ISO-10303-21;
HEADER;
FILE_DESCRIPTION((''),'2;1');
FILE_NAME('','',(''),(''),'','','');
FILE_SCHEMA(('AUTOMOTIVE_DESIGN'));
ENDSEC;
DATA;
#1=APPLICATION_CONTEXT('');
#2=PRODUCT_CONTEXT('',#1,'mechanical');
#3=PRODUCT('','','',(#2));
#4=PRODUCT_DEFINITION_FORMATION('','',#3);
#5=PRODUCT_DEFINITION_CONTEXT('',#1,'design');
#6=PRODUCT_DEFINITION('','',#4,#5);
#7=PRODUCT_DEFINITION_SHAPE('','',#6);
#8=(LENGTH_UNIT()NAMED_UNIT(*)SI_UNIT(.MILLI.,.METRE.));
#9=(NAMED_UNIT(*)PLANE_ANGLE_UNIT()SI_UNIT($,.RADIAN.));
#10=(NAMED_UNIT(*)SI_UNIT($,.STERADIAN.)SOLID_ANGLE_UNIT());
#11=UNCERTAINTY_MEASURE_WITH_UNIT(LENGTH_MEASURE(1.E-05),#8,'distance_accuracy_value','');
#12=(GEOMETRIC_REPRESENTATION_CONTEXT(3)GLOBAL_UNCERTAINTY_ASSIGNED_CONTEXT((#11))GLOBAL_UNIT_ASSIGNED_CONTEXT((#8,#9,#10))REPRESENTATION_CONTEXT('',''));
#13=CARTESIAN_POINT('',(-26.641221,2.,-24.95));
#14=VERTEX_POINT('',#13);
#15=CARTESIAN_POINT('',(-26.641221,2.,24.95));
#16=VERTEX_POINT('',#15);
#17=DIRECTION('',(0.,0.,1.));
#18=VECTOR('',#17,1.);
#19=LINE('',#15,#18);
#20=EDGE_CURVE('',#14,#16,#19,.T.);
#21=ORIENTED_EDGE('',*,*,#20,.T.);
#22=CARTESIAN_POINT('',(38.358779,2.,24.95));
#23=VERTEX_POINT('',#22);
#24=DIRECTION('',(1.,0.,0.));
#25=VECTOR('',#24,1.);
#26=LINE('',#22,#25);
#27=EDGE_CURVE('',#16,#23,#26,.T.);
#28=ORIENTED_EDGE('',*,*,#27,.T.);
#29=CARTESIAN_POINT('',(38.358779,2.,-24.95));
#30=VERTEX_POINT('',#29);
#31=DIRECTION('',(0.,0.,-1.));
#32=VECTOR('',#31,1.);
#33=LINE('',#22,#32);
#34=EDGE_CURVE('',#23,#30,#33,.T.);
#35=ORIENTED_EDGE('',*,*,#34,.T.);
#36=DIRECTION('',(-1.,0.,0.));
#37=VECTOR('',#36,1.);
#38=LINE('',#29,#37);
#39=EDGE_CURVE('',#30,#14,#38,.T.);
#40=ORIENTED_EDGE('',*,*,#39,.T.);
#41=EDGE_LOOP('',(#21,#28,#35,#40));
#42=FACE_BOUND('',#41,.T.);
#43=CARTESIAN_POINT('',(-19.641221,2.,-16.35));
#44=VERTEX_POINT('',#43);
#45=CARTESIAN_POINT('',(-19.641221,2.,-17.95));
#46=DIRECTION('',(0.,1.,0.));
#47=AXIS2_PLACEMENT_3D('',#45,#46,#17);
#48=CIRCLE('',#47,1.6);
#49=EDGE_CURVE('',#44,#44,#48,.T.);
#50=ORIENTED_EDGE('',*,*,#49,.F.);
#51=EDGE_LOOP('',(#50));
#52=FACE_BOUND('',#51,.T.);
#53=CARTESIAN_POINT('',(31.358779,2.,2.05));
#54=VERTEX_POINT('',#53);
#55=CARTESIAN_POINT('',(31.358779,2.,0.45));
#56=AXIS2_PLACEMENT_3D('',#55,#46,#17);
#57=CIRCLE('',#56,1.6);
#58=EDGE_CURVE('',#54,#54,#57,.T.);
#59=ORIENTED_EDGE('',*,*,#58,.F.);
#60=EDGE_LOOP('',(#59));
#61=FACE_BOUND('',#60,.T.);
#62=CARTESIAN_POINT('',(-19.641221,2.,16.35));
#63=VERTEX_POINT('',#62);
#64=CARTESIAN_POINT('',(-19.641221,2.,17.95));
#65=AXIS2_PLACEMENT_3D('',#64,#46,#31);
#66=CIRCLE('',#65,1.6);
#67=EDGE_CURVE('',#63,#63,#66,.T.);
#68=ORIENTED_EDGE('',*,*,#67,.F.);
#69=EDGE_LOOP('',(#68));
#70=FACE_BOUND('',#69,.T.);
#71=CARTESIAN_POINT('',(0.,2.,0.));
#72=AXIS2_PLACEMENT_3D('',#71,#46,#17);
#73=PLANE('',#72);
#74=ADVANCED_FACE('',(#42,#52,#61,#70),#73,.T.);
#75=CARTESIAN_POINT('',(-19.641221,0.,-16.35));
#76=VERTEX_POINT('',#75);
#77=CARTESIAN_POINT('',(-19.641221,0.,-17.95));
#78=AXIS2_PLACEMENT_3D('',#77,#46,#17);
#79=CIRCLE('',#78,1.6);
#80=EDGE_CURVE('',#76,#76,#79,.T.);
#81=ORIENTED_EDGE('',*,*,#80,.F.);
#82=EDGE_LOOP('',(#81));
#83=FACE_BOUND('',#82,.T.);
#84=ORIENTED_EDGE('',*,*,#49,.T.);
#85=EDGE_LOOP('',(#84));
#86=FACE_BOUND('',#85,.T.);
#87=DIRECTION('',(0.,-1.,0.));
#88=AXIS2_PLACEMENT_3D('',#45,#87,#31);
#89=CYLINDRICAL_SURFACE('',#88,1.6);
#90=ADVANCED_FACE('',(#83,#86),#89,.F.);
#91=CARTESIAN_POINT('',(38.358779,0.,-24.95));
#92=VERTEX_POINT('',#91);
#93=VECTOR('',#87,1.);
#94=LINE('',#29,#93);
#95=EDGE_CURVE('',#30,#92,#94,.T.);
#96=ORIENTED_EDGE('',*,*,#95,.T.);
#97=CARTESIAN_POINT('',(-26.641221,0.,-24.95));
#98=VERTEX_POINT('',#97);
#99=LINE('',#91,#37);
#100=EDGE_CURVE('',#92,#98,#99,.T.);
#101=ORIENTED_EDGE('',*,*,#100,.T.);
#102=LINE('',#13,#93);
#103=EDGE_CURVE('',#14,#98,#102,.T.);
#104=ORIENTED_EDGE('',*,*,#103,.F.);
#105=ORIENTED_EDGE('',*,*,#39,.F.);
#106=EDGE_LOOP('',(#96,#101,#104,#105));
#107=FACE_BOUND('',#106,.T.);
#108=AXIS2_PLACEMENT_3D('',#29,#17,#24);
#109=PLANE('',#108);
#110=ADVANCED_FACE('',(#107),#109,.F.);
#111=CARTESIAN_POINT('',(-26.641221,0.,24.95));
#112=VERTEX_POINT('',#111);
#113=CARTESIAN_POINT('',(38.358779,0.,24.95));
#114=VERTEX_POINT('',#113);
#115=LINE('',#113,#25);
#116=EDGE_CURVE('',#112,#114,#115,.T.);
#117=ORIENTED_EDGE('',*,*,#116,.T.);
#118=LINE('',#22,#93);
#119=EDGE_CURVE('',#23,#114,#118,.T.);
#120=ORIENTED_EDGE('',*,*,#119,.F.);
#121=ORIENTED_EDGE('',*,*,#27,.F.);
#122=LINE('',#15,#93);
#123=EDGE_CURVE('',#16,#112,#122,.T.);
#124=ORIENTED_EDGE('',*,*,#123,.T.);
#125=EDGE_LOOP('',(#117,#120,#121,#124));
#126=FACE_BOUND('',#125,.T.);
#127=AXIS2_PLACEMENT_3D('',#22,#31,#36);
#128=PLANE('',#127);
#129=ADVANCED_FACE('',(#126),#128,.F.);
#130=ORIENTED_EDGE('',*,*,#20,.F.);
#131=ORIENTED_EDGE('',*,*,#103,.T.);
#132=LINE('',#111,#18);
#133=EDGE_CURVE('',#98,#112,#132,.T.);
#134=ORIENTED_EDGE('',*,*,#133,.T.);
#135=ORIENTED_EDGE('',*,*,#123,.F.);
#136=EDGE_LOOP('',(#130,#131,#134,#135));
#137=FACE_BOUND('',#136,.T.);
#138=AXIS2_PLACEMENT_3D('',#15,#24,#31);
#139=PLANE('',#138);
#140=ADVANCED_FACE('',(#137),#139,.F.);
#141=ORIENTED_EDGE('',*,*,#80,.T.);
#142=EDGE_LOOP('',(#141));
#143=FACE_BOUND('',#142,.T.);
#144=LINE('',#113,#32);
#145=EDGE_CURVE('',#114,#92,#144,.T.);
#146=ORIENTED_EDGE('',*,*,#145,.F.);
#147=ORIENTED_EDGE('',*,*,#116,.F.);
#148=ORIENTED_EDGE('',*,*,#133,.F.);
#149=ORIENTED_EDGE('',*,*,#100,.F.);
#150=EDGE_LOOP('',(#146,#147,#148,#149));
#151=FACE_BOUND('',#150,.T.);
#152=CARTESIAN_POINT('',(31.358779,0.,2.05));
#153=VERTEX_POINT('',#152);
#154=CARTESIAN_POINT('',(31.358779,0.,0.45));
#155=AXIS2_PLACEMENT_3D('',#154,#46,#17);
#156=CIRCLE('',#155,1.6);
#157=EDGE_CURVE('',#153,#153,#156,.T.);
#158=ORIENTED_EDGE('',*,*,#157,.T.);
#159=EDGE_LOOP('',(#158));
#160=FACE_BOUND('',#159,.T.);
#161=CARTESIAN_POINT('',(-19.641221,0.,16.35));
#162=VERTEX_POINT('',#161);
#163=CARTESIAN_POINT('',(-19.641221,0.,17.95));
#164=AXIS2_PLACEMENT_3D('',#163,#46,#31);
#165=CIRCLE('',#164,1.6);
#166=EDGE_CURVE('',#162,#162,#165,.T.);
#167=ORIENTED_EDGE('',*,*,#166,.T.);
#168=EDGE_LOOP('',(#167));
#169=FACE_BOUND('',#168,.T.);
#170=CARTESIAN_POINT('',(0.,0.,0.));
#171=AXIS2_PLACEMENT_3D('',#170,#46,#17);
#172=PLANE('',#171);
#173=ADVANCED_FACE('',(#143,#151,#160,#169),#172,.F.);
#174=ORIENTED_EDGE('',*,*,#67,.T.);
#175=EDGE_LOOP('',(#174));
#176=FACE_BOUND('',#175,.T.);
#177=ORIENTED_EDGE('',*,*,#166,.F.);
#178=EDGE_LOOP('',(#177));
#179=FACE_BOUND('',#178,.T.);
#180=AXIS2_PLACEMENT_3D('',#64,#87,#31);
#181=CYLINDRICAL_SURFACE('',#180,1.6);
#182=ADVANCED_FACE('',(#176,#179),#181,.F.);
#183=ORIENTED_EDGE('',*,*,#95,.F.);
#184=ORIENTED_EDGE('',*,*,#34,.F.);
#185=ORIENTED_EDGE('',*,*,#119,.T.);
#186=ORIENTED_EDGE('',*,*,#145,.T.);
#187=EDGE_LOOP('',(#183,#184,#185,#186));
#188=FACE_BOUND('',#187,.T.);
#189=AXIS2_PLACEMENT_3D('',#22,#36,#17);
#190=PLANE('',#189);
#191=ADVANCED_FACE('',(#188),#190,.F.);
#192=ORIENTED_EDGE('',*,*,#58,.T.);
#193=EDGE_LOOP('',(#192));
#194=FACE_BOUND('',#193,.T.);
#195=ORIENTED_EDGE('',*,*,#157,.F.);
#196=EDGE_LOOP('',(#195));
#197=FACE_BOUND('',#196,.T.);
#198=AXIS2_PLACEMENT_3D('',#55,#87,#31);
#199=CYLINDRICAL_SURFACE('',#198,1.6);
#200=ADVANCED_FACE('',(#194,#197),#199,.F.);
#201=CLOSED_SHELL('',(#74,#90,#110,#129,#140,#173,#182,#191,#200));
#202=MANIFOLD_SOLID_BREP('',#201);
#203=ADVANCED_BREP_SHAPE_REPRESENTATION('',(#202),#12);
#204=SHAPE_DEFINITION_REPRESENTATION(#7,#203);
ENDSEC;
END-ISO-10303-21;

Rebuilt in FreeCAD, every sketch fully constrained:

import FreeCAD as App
import Part
import Sketcher
Q = App.Units.Quantity


def add_polygon(sketch, points):
    """Adds a closed chain of lines whose ends are joined by coincident constraints."""
    first, n = sketch.GeometryCount, len(points)
    for a, b in zip(points, points[1:] + points[:1]):
        sketch.addGeometry(Part.LineSegment(App.Vector(*a, 0), App.Vector(*b, 0)), False)
    for i in range(n):
        sketch.addConstraint(Sketcher.Constraint("Coincident", first + i, 2, first + (i + 1) % n, 1))

doc = App.newDocument("Part")
body = doc.addObject("PartDesign::Body", "Body")

# Sketch on XZ plane
sketch1 = doc.addObject("Sketcher::SketchObject", "Sketch")
body.addObject(sketch1)
sketch1.AttachmentSupport = (doc.XZ_Plane, [""])
sketch1.MapMode = "FlatFace"
add_polygon(sketch1, [(-26.6, -24.9), (-26.6, 24.9), (38.4, 24.9), (38.4, -24.9)])  # lines 0-3
sketch1.addGeometry(Part.Circle(App.Vector(-19.6, 17.9, 0), App.Vector(0, 0, 1), 1.6), False)  # 4
sketch1.addGeometry(Part.Circle(App.Vector(31.4, 0.5, 0), App.Vector(0, 0, 1), 1.6), False)  # 5
sketch1.addGeometry(Part.Circle(App.Vector(-19.6, -17.9, 0), App.Vector(0, 0, 1), 1.6), False)  # 6
sketch1.addConstraint([
    Sketcher.Constraint("Vertical", 0),
    Sketcher.Constraint("Horizontal", 1),
    Sketcher.Constraint("Vertical", 2),
    Sketcher.Constraint("Horizontal", 3),
    Sketcher.Constraint("Equal", 4, 5),
    Sketcher.Constraint("Equal", 5, 6),
    Sketcher.Constraint("Symmetric", 4, 3, 6, 3, -1),
    Sketcher.Constraint("Diameter", 4, Q("3.2 mm")),
    Sketcher.Constraint("DistanceX", 1, 1, 1, 2, Q("65 mm")),
    Sketcher.Constraint("DistanceY", 0, 1, 0, 2, Q("49.9 mm")),
    Sketcher.Constraint("DistanceX", 4, 3, 5, 3, Q("51 mm")),
    Sketcher.Constraint("DistanceX", 0, 2, 4, 3, Q("7 mm")),
    Sketcher.Constraint("DistanceY", 4, 3, 0, 2, Q("7 mm")),
    Sketcher.Constraint("DistanceY", 2, 2, 6, 3, Q("7 mm")),
    Sketcher.Constraint("DistanceY", 5, 3, 4, 3, Q("17.5 mm")),
    Sketcher.Constraint("DistanceX", 4, 3, -1, 1, Q("19.641221 mm")),
])
pad1 = doc.addObject("PartDesign::Pad", "Pad")
body.addObject(pad1)
pad1.Profile = sketch1
pad1.Length = 2
pad1.Reversed = True

doc.recompute()
